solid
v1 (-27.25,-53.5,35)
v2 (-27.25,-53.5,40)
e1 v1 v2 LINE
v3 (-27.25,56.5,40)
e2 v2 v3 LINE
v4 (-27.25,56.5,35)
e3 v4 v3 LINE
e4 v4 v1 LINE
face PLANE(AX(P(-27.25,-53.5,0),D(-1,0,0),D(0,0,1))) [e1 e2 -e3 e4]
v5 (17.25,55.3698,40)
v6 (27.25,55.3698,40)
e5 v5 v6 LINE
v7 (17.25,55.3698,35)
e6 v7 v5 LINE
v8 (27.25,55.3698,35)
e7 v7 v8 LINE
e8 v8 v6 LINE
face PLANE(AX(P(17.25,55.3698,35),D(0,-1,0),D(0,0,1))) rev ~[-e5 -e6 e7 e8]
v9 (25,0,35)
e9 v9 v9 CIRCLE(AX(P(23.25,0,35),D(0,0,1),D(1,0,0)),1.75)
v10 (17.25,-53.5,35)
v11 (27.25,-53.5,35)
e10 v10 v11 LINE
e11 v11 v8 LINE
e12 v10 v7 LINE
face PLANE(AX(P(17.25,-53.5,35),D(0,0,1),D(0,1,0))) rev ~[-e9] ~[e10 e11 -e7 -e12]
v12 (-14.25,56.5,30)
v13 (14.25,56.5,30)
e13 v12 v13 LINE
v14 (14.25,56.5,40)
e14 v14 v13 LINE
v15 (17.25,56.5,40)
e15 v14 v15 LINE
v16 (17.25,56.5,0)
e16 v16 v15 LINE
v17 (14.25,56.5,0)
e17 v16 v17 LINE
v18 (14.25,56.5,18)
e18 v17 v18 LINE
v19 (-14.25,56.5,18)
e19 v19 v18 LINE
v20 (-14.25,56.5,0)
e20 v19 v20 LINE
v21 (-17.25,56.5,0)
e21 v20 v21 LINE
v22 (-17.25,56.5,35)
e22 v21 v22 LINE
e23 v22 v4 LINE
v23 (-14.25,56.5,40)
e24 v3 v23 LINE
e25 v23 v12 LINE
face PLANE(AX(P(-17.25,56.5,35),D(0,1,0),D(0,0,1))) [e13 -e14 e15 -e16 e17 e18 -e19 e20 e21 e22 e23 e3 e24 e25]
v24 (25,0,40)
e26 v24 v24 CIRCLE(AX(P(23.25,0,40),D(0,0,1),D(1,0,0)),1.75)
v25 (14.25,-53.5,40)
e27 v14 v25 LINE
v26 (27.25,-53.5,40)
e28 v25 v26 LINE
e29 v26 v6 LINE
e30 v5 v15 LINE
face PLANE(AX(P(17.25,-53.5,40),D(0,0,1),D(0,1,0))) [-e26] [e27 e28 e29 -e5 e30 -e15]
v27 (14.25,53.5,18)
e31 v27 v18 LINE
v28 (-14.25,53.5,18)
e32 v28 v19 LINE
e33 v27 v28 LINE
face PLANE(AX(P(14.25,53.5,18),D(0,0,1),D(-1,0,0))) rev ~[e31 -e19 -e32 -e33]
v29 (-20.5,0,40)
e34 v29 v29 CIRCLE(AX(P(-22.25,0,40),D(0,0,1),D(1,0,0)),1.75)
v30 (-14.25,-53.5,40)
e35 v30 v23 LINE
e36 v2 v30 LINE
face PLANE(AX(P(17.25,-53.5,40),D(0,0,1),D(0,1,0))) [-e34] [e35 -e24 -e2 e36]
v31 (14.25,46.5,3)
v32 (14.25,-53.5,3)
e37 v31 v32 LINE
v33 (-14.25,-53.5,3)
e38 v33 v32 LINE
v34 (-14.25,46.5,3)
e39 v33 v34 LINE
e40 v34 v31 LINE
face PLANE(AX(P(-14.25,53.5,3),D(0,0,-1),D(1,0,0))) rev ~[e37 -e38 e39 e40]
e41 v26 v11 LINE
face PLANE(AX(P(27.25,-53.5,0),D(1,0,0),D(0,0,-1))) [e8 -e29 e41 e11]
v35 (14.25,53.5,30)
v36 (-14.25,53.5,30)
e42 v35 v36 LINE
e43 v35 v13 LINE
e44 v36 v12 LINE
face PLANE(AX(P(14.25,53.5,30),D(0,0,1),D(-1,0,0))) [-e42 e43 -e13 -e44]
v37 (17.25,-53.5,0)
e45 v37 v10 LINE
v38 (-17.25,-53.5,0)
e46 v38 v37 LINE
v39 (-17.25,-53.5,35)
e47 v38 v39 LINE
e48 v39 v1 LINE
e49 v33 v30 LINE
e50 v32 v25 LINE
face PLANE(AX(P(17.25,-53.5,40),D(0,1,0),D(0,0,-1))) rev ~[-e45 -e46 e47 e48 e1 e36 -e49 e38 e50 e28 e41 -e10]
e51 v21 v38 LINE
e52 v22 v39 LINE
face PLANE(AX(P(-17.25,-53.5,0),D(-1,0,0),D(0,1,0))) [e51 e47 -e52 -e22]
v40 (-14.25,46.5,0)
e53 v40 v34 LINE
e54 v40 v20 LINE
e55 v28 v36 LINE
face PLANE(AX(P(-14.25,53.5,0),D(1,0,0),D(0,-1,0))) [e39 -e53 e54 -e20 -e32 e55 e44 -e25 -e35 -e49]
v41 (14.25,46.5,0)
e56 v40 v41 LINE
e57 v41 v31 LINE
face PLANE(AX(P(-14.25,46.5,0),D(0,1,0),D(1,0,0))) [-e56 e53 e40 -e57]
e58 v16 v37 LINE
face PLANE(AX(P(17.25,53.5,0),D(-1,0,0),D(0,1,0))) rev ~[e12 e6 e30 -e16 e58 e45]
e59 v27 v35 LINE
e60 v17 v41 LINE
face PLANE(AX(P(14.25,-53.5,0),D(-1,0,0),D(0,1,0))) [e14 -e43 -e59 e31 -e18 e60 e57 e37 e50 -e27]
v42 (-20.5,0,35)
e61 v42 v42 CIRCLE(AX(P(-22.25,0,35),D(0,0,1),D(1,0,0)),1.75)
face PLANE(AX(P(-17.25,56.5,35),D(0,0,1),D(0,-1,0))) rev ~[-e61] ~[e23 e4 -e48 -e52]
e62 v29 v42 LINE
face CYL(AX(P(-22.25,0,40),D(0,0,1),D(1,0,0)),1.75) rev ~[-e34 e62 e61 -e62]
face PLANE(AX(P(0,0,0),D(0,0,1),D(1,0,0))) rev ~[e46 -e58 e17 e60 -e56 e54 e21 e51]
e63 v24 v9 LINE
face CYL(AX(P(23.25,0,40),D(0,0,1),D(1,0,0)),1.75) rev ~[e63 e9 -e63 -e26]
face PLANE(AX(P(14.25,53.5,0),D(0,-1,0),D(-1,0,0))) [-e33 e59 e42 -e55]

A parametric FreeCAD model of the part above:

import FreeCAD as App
import Part
import Sketcher

V = App.Vector
Q = App.Units.Quantity

doc = App.newDocument("Part")
body = doc.addObject("PartDesign::Body", "Body")

# Sketch on XY plane
sketch1 = body.newObject("Sketcher::SketchObject", "Sketch")
sketch1.AttachmentSupport = (doc.getObject("XY_Plane"), [""])
sketch1.MapMode = "FlatFace"
sketch1.addGeometry(Part.LineSegment(V(-17.2, -53.5, 0), V(-14.2, -53.5, 0)), False)
sketch1.addGeometry(Part.LineSegment(V(-14.2, -53.5, 0), V(-14.2, 53.5, 0)), False)
sketch1.addGeometry(Part.LineSegment(V(-14.2, 53.5, 0), V(14.2, 53.5, 0)), False)
sketch1.addGeometry(Part.LineSegment(V(14.2, 53.5, 0), V(14.2, -53.5, 0)), False)
sketch1.addGeometry(Part.LineSegment(V(14.2, -53.5, 0), V(17.2, -53.5, 0)), False)
sketch1.addGeometry(Part.LineSegment(V(17.2, -53.5, 0), V(17.2, 56.5, 0)), False)
sketch1.addGeometry(Part.LineSegment(V(17.2, 56.5, 0), V(-17.2, 56.5, 0)), False)
sketch1.addGeometry(Part.LineSegment(V(-17.2, 56.5, 0), V(-17.2, -53.5, 0)), False)
sketch1.addConstraint(Sketcher.Constraint("Coincident", 0, 2, 1, 1))
sketch1.addConstraint(Sketcher.Constraint("Coincident", 1, 2, 2, 1))
sketch1.addConstraint(Sketcher.Constraint("Coincident", 2, 2, 3, 1))
sketch1.addConstraint(Sketcher.Constraint("Coincident", 3, 2, 4, 1))
sketch1.addConstraint(Sketcher.Constraint("Coincident", 4, 2, 5, 1))
sketch1.addConstraint(Sketcher.Constraint("Coincident", 5, 2, 6, 1))
sketch1.addConstraint(Sketcher.Constraint("Coincident", 6, 2, 7, 1))
sketch1.addConstraint(Sketcher.Constraint("Coincident", 7, 2, 0, 1))
sketch1.addConstraint(Sketcher.Constraint("Horizontal", 0))
sketch1.addConstraint(Sketcher.Constraint("Vertical", 1))
sketch1.addConstraint(Sketcher.Constraint("Horizontal", 2))
sketch1.addConstraint(Sketcher.Constraint("Vertical", 3))
sketch1.addConstraint(Sketcher.Constraint("Horizontal", 4))
sketch1.addConstraint(Sketcher.Constraint("Vertical", 5))
sketch1.addConstraint(Sketcher.Constraint("Horizontal", 6))
sketch1.addConstraint(Sketcher.Constraint("Vertical", 7))
sketch1.addConstraint(Sketcher.Constraint("Symmetric", 0, 2, 2, 2, -1, 1))
sketch1.addConstraint(Sketcher.Constraint("Symmetric", 4, 2, 7, 2, -2))
sketch1.addConstraint(Sketcher.Constraint("DistanceX", 0, 1, 0, 2, Q("3 mm")))
sketch1.addConstraint(Sketcher.Constraint("DistanceY", 1, 1, 1, 2, Q("107 mm")))
sketch1.addConstraint(Sketcher.Constraint("DistanceX", 2, 1, 2, 2, Q("28.5 mm")))
sketch1.addConstraint(Sketcher.Constraint("DistanceY", 2, 2, 5, 2, Q("3 mm")))
pad1 = body.newObject("PartDesign::Pad", "Pad")
pad1.Profile = sketch1
pad1.Length = 40

# Sketch on XY plane
sketch2 = body.newObject("Sketcher::SketchObject", "Sketch001")
sketch2.AttachmentSupport = (doc.getObject("XY_Plane"), [""])
sketch2.MapMode = "FlatFace"
sketch2.addGeometry(Part.LineSegment(V(-14, 54, 0), V(-14, -54, 0)), False)
sketch2.addGeometry(Part.LineSegment(V(-14, -54, 0), V(14, -54, 0)), False)
sketch2.addGeometry(Part.LineSegment(V(14, -54, 0), V(14, 54, 0)), False)
sketch2.addGeometry(Part.LineSegment(V(14, 54, 0), V(-14, 54, 0)), False)
sketch2.addConstraint(Sketcher.Constraint("Coincident", 0, 2, 1, 1))
sketch2.addConstraint(Sketcher.Constraint("Coincident", 1, 2, 2, 1))
sketch2.addConstraint(Sketcher.Constraint("Coincident", 2, 2, 3, 1))
sketch2.addConstraint(Sketcher.Constraint("Coincident", 3, 2, 0, 1))
sketch2.addConstraint(Sketcher.Constraint("Vertical", 0))
sketch2.addConstraint(Sketcher.Constraint("Horizontal", 1))
sketch2.addConstraint(Sketcher.Constraint("Vertical", 2))
sketch2.addConstraint(Sketcher.Constraint("Horizontal", 3))
sketch2.addConstraint(Sketcher.Constraint("Symmetric", 0, 2, 2, 2, -1, 1))
sketch2.addConstraint(Sketcher.Constraint("DistanceY", 0, 2, 0, 1, Q("107 mm")))
sketch2.addConstraint(Sketcher.Constraint("DistanceX", 1, 1, 1, 2, Q("28.5 mm")))
pad2 = body.newObject("PartDesign::Pad", "Pad001")
pad2.Profile = sketch2
pad2.Length = 3

# Sketch on YZ plane
sketch3 = body.newObject("Sketcher::SketchObject", "Sketch002")
sketch3.AttachmentSupport = (doc.getObject("YZ_Plane"), [""])
sketch3.MapMode = "FlatFace"
sketch3.AttachmentOffset = App.Placement(V(0, 0, -17.25), App.Rotation())
sketch3.addGeometry(Part.LineSegment(V(56, 40, 0), V(56, 35, 0)), False)
sketch3.addGeometry(Part.LineSegment(V(56, 35, 0), V(-54, 35, 0)), False)
sketch3.addGeometry(Part.LineSegment(V(-54, 35, 0), V(-54, 40, 0)), False)
sketch3.addGeometry(Part.LineSegment(V(-54, 40, 0), V(56, 40, 0)), False)
sketch3.addConstraint(Sketcher.Constraint("Coincident", 0, 2, 1, 1))
sketch3.addConstraint(Sketcher.Constraint("Coincident", 1, 2, 2, 1))
sketch3.addConstraint(Sketcher.Constraint("Coincident", 2, 2, 3, 1))
sketch3.addConstraint(Sketcher.Constraint("Coincident", 3, 2, 0, 1))
sketch3.addConstraint(Sketcher.Constraint("Vertical", 0))
sketch3.addConstraint(Sketcher.Constraint("Horizontal", 1))
sketch3.addConstraint(Sketcher.Constraint("Vertical", 2))
sketch3.addConstraint(Sketcher.Constraint("Horizontal", 3))
sketch3.addConstraint(Sketcher.Constraint("DistanceY", 0, 2, 0, 1, Q("5 mm")))
sketch3.addConstraint(Sketcher.Constraint("DistanceX", 1, 2, 1, 1, Q("110 mm")))
sketch3.addConstraint(Sketcher.Constraint("DistanceY", -1, 1, 0, 2, Q("35 mm")))
sketch3.addConstraint(Sketcher.Constraint("DistanceX", -1, 1, 0, 2, Q("56.5 mm")))
pad3 = body.newObject("PartDesign::Pad", "Pad002")
pad3.Profile = sketch3
pad3.Length = 10
pad3.Reversed = True

# Sketch on YZ plane
sketch4 = body.newObject("Sketcher::SketchObject", "Sketch003")
sketch4.AttachmentSupport = (doc.getObject("YZ_Plane"), [""])
sketch4.MapMode = "FlatFace"
sketch4.AttachmentOffset = App.Placement(V(0, 0, 17.25), App.Rotation())
sketch4.addGeometry(Part.LineSegment(V(55, 40, 0), V(-54, 40, 0)), False)
sketch4.addGeometry(Part.LineSegment(V(-54, 40, 0), V(-54, 35, 0)), False)
sketch4.addGeometry(Part.LineSegment(V(-54, 35, 0), V(55, 35, 0)), False)
sketch4.addGeometry(Part.LineSegment(V(55, 35, 0), V(55, 40, 0)), False)
sketch4.addConstraint(Sketcher.Constraint("Coincident", 0, 2, 1, 1))
sketch4.addConstraint(Sketcher.Constraint("Coincident", 1, 2, 2, 1))
sketch4.addConstraint(Sketcher.Constraint("Coincident", 2, 2, 3, 1))
sketch4.addConstraint(Sketcher.Constraint("Coincident", 3, 2, 0, 1))
sketch4.addConstraint(Sketcher.Constraint("Horizontal", 0))
sketch4.addConstraint(Sketcher.Constraint("Vertical", 1))
sketch4.addConstraint(Sketcher.Constraint("Horizontal", 2))
sketch4.addConstraint(Sketcher.Constraint("Vertical", 3))
sketch4.addConstraint(Sketcher.Constraint("DistanceY", 1, 2, 1, 1, Q("5 mm")))
sketch4.addConstraint(Sketcher.Constraint("DistanceY", -1, 1, 0, 2, Q("40 mm")))
sketch4.addConstraint(Sketcher.Constraint("DistanceX", 0, 2, -1, 1, Q("53.5 mm")))
sketch4.addConstraint(Sketcher.Constraint("DistanceX", 0, 2, 0, 1, Q("108.8698 mm")))
pad4 = body.newObject("PartDesign::Pad", "Pad003")
pad4.Profile = sketch4
pad4.Length = 10

# Sketch on XZ plane
sketch5 = body.newObject("Sketcher::SketchObject", "Sketch004")
sketch5.AttachmentSupport = (doc.getObject("XZ_Plane"), [""])
sketch5.MapMode = "FlatFace"
sketch5.AttachmentOffset = App.Placement(V(0, 0, -53.5), App.Rotation())
sketch5.addGeometry(Part.LineSegment(V(-14, 18, 0), V(-14, 3, 0)), False)
sketch5.addGeometry(Part.LineSegment(V(-14, 3, 0), V(14, 3, 0)), False)
sketch5.addGeometry(Part.LineSegment(V(14, 3, 0), V(14, 18, 0)), False)
sketch5.addGeometry(Part.LineSegment(V(14, 18, 0), V(-14, 18, 0)), False)
sketch5.addConstraint(Sketcher.Constraint("Coincident", 0, 2, 1, 1))
sketch5.addConstraint(Sketcher.Constraint("Coincident", 1, 2, 2, 1))
sketch5.addConstraint(Sketcher.Constraint("Coincident", 2, 2, 3, 1))
sketch5.addConstraint(Sketcher.Constraint("Coincident", 3, 2, 0, 1))
sketch5.addConstraint(Sketcher.Constraint("Vertical", 0))
sketch5.addConstraint(Sketcher.Constraint("Horizontal", 1))
sketch5.addConstraint(Sketcher.Constraint("Vertical", 2))
sketch5.addConstraint(Sketcher.Constraint("Horizontal", 3))
sketch5.addConstraint(Sketcher.Constraint("DistanceY", 0, 2, 0, 1, Q("15 mm")))
sketch5.addConstraint(Sketcher.Constraint("DistanceX", 1, 1, 1, 2, Q("28.5 mm")))
sketch5.addConstraint(Sketcher.Constraint("DistanceY", -1, 1, 0, 2, Q("3 mm")))
sketch5.addConstraint(Sketcher.Constraint("DistanceX", 0, 2, -1, 1, Q("14.25 mm")))
pocket1 = body.newObject("PartDesign::Pocket", "Pocket")
pocket1.Profile = sketch5
pocket1.Length = 10

# Sketch on XZ plane
sketch6 = body.newObject("Sketcher::SketchObject", "Sketch005")
sketch6.AttachmentSupport = (doc.getObject("XZ_Plane"), [""])
sketch6.MapMode = "FlatFace"
sketch6.AttachmentOffset = App.Placement(V(0, 0, -53.5), App.Rotation())
sketch6.addGeometry(Part.LineSegment(V(-14, 30, 0), V(14, 30, 0)), False)
sketch6.addGeometry(Part.LineSegment(V(14, 30, 0), V(14, 40, 0)), False)
sketch6.addGeometry(Part.LineSegment(V(14, 40, 0), V(-14, 40, 0)), False)
sketch6.addGeometry(Part.LineSegment(V(-14, 40, 0), V(-14, 30, 0)), False)
sketch6.addConstraint(Sketcher.Constraint("Coincident", 0, 2, 1, 1))
sketch6.addConstraint(Sketcher.Constraint("Coincident", 1, 2, 2, 1))
sketch6.addConstraint(Sketcher.Constraint("Coincident", 2, 2, 3, 1))
sketch6.addConstraint(Sketcher.Constraint("Coincident", 3, 2, 0, 1))
sketch6.addConstraint(Sketcher.Constraint("Horizontal", 0))
sketch6.addConstraint(Sketcher.Constraint("Vertical", 1))
sketch6.addConstraint(Sketcher.Constraint("Horizontal", 2))
sketch6.addConstraint(Sketcher.Constraint("Vertical", 3))
sketch6.addConstraint(Sketcher.Constraint("DistanceY", 1, 1, 1, 2, Q("10 mm")))
sketch6.addConstraint(Sketcher.Constraint("DistanceX", 0, 1, 0, 2, Q("28.5 mm")))
sketch6.addConstraint(Sketcher.Constraint("DistanceY", -1, 1, 0, 2, Q("30 mm")))
sketch6.addConstraint(Sketcher.Constraint("DistanceX", -1, 1, 0, 2, Q("14.25 mm")))
pocket2 = body.newObject("PartDesign::Pocket", "Pocket001")
pocket2.Profile = sketch6
pocket2.Length = 10

# Sketch on XY plane
sketch7 = body.newObject("Sketcher::SketchObject", "Sketch006")
sketch7.AttachmentSupport = (doc.getObject("XY_Plane"), [""])
sketch7.MapMode = "FlatFace"
sketch7.addGeometry(Part.LineSegment(V(14, 56, 0), V(14, 46, 0)), False)
sketch7.addGeometry(Part.LineSegment(V(14, 46, 0), V(-14, 46, 0)), False)
sketch7.addGeometry(Part.LineSegment(V(-14, 46, 0), V(-14, 56, 0)), False)
sketch7.addGeometry(Part.LineSegment(V(-14, 56, 0), V(14, 56, 0)), False)
sketch7.addConstraint(Sketcher.Constraint("Coincident", 0, 2, 1, 1))
sketch7.addConstraint(Sketcher.Constraint("Coincident", 1, 2, 2, 1))
sketch7.addConstraint(Sketcher.Constraint("Coincident", 2, 2, 3, 1))
sketch7.addConstraint(Sketcher.Constraint("Coincident", 3, 2, 0, 1))
sketch7.addConstraint(Sketcher.Constraint("Vertical", 0))
sketch7.addConstraint(Sketcher.Constraint("Horizontal", 1))
sketch7.addConstraint(Sketcher.Constraint("Vertical", 2))
sketch7.addConstraint(Sketcher.Constraint("Horizontal", 3))
sketch7.addConstraint(Sketcher.Constraint("DistanceY", 0, 2, 0, 1, Q("10 mm")))
sketch7.addConstraint(Sketcher.Constraint("DistanceX", 1, 2, 1, 1, Q("28.5 mm")))
sketch7.addConstraint(Sketcher.Constraint("DistanceY", -1, 1, 0, 2, Q("46.5 mm")))
sketch7.addConstraint(Sketcher.Constraint("DistanceX", -1, 1, 0, 2, Q("14.25 mm")))
pocket3 = body.newObject("PartDesign::Pocket", "Pocket002")
pocket3.Profile = sketch7
pocket3.Length = 10
pocket3.Reversed = True

# Sketch on XY plane
sketch8 = body.newObject("Sketcher::SketchObject", "Sketch007")
sketch8.AttachmentSupport = (doc.getObject("XY_Plane"), [""])
sketch8.MapMode = "FlatFace"
sketch8.AttachmentOffset = App.Placement(V(0, 0, 40), App.Rotation())
sketch8.addGeometry(Part.Circle(V(-22.2, 0, 0), V(0, 0, 1), 1.8), False)
sketch8.addConstraint(Sketcher.Constraint("PointOnObject", 0, 3, -1))
sketch8.addConstraint(Sketcher.Constraint("Diameter", 0, Q("3.5 mm")))
sketch8.addConstraint(Sketcher.Constraint("DistanceX", 0, 3, -1, 1, Q("22.25 mm")))
pocket4 = body.newObject("PartDesign::Pocket", "Pocket003")
pocket4.Profile = sketch8
pocket4.Length = 10

# Sketch on XY plane
sketch9 = body.newObject("Sketcher::SketchObject", "Sketch008")
sketch9.AttachmentSupport = (doc.getObject("XY_Plane"), [""])
sketch9.MapMode = "FlatFace"
sketch9.AttachmentOffset = App.Placement(V(0, 0, 40), App.Rotation())
sketch9.addGeometry(Part.Circle(V(23.2, 0, 0), V(0, 0, 1), 1.8), False)
sketch9.addConstraint(Sketcher.Constraint("PointOnObject", 0, 3, -1))
sketch9.addConstraint(Sketcher.Constraint("Diameter", 0, Q("3.5 mm")))
sketch9.addConstraint(Sketcher.Constraint("DistanceX", -1, 1, 0, 3, Q("23.25 mm")))
pocket5 = body.newObject("PartDesign::Pocket", "Pocket004")
pocket5.Profile = sketch9
pocket5.Length = 10

doc.recompute()
